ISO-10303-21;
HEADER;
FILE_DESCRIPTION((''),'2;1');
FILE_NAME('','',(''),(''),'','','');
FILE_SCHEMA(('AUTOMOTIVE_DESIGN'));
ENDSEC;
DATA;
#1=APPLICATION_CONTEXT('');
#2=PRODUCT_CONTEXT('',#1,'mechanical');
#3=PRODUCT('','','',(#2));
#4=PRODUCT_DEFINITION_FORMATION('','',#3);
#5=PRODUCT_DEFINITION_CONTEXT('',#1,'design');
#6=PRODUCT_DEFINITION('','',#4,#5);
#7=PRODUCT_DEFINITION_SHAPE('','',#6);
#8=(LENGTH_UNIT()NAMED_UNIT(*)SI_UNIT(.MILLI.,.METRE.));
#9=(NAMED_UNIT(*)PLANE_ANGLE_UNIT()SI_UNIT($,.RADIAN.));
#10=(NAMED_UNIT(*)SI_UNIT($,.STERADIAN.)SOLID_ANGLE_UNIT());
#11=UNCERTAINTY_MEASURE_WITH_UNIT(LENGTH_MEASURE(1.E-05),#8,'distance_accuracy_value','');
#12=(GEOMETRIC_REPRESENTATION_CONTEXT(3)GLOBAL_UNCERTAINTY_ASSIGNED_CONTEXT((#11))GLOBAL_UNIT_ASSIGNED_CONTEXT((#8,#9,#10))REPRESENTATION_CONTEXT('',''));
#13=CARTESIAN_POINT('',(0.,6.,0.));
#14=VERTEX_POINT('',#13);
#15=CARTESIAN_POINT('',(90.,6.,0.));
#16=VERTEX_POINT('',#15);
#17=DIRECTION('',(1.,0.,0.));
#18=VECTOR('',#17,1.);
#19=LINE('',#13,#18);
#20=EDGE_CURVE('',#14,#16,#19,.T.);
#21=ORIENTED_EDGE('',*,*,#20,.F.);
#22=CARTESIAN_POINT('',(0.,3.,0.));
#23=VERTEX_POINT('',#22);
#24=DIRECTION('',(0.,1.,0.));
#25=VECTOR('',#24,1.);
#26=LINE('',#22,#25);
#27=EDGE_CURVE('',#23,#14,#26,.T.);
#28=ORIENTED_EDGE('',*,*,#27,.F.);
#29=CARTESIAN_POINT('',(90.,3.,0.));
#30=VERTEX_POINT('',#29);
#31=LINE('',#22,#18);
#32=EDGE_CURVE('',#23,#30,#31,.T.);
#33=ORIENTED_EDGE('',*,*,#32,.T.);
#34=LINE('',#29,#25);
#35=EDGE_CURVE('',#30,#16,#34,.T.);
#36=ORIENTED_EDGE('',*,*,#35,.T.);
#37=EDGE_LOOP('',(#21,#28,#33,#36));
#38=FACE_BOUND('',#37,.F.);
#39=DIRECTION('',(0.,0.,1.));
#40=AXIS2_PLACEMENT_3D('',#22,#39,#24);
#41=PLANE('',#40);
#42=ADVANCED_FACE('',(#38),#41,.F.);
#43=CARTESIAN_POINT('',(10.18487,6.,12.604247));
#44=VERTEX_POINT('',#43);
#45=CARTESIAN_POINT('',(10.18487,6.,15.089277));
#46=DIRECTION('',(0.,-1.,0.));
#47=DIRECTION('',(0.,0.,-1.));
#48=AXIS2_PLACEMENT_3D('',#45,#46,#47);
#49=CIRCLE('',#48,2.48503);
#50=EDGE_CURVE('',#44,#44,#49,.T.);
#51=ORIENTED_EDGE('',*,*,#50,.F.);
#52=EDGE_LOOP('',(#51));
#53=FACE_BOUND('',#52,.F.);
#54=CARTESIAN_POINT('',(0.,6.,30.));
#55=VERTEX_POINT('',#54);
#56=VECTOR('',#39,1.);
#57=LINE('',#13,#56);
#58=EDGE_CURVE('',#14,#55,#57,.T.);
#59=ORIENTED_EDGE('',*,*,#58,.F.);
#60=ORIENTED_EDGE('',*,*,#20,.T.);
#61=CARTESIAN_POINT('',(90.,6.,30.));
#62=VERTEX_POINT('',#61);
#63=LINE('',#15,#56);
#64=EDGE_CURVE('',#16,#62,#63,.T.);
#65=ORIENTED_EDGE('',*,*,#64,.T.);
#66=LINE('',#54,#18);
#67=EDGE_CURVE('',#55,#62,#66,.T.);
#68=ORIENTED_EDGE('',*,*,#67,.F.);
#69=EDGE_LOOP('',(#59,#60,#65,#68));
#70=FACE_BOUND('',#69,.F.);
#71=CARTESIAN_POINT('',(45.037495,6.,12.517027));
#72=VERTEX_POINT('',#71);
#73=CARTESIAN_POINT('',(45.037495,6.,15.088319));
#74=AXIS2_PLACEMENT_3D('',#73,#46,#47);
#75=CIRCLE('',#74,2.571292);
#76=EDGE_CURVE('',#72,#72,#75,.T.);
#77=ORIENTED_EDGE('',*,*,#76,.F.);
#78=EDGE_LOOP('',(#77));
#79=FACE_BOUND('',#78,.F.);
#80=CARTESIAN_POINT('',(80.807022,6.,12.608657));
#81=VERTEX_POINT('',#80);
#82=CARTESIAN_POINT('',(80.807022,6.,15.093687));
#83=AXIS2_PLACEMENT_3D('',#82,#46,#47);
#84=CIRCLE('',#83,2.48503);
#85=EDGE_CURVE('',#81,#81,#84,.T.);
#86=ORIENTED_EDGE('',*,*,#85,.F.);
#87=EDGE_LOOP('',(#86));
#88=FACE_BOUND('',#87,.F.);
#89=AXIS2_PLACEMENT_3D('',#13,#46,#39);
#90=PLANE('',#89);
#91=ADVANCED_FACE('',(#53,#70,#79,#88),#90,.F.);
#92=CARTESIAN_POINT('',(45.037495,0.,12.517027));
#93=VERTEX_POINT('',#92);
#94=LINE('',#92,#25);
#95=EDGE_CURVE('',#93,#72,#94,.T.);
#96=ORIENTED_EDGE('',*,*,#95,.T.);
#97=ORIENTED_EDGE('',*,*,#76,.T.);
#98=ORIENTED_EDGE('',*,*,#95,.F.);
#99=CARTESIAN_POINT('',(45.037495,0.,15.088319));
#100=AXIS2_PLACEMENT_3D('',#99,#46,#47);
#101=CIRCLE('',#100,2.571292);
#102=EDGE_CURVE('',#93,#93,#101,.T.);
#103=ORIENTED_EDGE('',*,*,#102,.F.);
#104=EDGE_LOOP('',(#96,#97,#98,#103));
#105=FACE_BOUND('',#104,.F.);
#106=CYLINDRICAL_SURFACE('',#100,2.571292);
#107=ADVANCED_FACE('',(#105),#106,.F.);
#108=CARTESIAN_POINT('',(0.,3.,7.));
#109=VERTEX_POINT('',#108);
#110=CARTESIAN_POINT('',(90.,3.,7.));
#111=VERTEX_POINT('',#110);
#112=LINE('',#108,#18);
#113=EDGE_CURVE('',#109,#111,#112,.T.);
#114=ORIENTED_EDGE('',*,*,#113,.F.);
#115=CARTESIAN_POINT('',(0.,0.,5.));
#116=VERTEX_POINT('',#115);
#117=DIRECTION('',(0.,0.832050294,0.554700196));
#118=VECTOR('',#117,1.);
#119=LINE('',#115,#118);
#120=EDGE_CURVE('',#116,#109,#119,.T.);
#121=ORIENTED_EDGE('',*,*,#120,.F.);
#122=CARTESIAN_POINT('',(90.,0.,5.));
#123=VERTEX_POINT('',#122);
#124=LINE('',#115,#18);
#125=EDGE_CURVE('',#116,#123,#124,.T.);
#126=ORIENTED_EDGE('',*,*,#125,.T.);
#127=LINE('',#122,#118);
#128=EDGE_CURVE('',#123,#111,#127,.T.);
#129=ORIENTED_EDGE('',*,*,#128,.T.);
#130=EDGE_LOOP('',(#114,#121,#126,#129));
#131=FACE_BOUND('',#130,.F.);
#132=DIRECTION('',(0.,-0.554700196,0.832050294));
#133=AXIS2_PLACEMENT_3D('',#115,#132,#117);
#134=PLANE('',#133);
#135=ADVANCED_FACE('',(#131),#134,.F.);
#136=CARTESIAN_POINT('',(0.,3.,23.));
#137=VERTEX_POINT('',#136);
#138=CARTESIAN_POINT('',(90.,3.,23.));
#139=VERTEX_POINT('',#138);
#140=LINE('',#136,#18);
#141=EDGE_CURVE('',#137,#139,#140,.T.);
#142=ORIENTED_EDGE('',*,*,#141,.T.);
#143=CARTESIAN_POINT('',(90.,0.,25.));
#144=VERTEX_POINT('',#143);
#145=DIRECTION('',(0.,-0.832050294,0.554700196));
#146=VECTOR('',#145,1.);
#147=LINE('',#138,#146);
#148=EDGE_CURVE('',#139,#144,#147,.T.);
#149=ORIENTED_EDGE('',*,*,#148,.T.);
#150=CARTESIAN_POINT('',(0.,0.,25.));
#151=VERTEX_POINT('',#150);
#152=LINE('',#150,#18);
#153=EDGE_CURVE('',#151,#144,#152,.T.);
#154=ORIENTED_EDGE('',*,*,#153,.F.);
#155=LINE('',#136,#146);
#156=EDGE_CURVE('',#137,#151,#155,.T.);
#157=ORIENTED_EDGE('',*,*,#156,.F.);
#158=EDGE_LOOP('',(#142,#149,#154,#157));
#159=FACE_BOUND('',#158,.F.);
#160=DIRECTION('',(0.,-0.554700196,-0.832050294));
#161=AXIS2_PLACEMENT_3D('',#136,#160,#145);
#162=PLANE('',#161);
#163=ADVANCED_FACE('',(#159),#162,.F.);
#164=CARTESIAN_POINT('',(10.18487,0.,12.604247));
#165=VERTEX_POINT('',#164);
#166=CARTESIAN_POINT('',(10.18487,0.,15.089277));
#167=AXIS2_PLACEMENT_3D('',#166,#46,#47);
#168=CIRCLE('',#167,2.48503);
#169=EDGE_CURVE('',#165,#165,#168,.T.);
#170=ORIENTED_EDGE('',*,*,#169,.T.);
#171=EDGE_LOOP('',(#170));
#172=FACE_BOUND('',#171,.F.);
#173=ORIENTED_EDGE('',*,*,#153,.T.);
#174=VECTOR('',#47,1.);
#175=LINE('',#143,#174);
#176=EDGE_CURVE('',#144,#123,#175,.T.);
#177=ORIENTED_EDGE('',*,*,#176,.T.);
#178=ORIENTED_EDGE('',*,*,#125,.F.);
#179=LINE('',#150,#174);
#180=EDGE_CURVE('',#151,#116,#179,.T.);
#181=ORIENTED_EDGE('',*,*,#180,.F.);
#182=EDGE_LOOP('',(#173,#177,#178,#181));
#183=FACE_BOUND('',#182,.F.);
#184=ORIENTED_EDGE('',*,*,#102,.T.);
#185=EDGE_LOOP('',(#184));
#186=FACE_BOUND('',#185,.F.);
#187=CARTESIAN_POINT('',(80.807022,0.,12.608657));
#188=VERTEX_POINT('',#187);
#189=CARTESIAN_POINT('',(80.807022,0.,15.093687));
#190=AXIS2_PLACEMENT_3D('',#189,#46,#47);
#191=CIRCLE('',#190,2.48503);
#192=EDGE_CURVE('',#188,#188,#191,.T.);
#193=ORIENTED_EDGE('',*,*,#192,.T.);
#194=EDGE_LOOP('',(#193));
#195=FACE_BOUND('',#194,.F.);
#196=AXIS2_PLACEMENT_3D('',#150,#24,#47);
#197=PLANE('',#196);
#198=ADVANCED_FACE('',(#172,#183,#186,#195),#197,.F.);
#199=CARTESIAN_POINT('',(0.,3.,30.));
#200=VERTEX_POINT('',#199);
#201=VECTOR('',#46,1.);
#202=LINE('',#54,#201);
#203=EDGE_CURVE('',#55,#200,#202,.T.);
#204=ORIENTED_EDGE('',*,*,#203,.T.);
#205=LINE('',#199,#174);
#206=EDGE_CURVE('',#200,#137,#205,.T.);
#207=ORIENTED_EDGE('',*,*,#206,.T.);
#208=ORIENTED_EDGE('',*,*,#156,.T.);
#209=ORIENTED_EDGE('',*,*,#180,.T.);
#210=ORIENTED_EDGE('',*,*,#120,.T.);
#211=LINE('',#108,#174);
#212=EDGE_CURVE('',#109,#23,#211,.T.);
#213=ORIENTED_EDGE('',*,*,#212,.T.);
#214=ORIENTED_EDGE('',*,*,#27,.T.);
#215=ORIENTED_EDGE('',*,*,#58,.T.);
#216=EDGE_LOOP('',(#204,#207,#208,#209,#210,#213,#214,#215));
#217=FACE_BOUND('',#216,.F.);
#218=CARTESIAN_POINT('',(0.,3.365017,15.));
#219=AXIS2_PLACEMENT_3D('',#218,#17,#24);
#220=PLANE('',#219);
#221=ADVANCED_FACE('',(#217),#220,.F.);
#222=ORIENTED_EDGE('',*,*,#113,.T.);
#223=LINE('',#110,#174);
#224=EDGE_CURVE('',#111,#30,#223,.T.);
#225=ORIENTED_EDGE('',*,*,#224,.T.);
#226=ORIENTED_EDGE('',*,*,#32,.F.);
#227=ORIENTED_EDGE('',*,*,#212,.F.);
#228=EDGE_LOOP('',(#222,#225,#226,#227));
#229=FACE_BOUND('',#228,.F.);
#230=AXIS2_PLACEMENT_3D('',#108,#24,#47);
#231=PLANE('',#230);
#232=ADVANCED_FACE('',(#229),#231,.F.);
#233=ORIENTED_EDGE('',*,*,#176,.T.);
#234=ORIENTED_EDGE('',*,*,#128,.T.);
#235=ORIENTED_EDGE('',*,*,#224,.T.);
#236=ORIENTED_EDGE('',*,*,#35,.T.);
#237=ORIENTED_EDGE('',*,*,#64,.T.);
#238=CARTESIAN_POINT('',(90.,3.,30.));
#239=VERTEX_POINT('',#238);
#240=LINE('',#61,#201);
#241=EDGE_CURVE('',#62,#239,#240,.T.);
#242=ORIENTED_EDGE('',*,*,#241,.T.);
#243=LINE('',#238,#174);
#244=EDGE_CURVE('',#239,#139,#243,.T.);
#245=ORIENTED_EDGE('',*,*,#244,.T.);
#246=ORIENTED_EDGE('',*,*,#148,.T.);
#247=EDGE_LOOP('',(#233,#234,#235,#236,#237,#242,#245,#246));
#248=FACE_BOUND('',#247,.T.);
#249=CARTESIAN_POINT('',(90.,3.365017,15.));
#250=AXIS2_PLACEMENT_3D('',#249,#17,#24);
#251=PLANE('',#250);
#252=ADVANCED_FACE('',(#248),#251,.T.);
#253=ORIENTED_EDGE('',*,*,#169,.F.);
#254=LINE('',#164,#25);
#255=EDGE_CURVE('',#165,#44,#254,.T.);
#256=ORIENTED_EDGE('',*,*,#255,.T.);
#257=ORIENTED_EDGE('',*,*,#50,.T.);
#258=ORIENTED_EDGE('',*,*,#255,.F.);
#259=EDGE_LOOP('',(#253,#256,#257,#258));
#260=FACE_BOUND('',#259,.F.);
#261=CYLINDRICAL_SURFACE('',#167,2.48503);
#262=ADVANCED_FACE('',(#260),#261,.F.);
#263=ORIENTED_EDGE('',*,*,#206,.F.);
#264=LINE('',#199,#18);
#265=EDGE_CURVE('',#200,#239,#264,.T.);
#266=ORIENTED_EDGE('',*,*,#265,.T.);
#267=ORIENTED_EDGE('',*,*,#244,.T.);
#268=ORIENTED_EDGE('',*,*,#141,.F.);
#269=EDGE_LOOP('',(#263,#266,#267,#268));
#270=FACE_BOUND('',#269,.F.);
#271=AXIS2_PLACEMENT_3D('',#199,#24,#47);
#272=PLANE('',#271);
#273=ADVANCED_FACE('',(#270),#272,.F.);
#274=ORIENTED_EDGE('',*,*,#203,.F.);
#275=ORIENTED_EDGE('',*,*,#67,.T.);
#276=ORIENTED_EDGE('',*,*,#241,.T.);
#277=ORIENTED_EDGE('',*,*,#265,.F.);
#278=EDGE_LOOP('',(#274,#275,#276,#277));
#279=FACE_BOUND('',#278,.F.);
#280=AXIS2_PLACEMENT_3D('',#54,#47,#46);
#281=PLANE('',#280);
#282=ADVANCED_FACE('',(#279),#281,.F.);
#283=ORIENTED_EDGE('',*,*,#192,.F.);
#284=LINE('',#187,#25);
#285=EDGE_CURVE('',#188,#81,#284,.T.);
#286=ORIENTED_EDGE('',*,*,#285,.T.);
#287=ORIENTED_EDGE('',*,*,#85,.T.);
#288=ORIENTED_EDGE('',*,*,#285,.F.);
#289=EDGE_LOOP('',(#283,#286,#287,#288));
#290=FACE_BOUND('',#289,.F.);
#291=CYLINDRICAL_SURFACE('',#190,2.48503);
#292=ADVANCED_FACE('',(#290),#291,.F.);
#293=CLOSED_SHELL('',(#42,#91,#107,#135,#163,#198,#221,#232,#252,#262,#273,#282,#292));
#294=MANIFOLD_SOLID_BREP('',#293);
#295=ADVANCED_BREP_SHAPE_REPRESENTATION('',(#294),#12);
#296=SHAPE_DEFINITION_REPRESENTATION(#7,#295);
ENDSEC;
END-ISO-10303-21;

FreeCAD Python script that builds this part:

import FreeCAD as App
import Part
import Sketcher

V = App.Vector


def add_polygon(sketch, points):
    """Adds a closed chain of lines whose ends are joined by coincident constraints."""
    first, n = sketch.GeometryCount, len(points)
    for a, b in zip(points, points[1:] + points[:1]):
        sketch.addGeometry(Part.LineSegment(App.Vector(*a, 0), App.Vector(*b, 0)), False)
    for i in range(n):
        sketch.addConstraint(Sketcher.Constraint("Coincident", first + i, 2, first + (i + 1) % n, 1))

doc = App.newDocument("Part")
params = doc.addObject("Spreadsheet::Sheet", "Params")
for row, (alias, value) in enumerate([
    ("sketch1_width", "3 mm"),
    ("sketch1_height", "30 mm"),
    ("sketch1_height2", "7 mm"),
    ("sketch1_height3", "20 mm"),
    ("pad1_length", "90 mm"),
    ("pocket1_length", "6 mm"),
], start=1):
    params.set(f"A{row}", alias)
    params.set(f"B{row}", "=" + value)
    params.setAlias(f"B{row}", alias)

body = doc.addObject("PartDesign::Body", "Body")

sketch1 = body.newObject("Sketcher::SketchObject", "Sketch")
sketch1.AttachmentSupport = (doc.getObject("YZ_Plane"), [""])
sketch1.MapMode = "FlatFace"
add_polygon(sketch1, [(6, 0), (6, 30), (3, 30), (3, 23), (0, 25), (0, 5), (3, 7), (3, 0)])
sketch1.addConstraint([
    Sketcher.Constraint("Vertical", 0),
    Sketcher.Constraint("Horizontal", 1),
    Sketcher.Constraint("Vertical", 2),
    Sketcher.Constraint("Vertical", 4),
    Sketcher.Constraint("Vertical", 6),
    Sketcher.Constraint("Horizontal", 7),
    Sketcher.Constraint("PointOnObject", 3, 2, -2),
    Sketcher.Constraint("PointOnObject", 6, 2, -1),
    Sketcher.Constraint("Vertical", 2, 2, 5, 2),
    Sketcher.Constraint("Equal", 2, 6),
    Sketcher.Constraint("Equal", 3, 5),
    Sketcher.Constraint("DistanceX", 1, 2, 1, 1, 3.0),
    Sketcher.Constraint("DistanceY", 0, 1, 0, 2, 30.0),
    Sketcher.Constraint("DistanceY", 2, 2, 2, 1, 7.0),
    Sketcher.Constraint("DistanceY", 4, 2, 4, 1, 20.0),
    Sketcher.Constraint("DistanceX", -1, 1, 0, 2, 6.0),
])
sketch1.setExpression("Constraints[19]", "Params.sketch1_width")
sketch1.setExpression("Constraints[20]", "Params.sketch1_height")
sketch1.setExpression("Constraints[21]", "Params.sketch1_height2")
sketch1.setExpression("Constraints[22]", "Params.sketch1_height3")
pad1 = body.newObject("PartDesign::Pad", "Pad")
pad1.Profile = sketch1
pad1.setExpression("Length", "Params.pad1_length")

sketch2 = body.newObject("Sketcher::SketchObject", "Sketch001")
sketch2.AttachmentSupport = (doc.getObject("XZ_Plane"), [""])
sketch2.MapMode = "FlatFace"
sketch2.addGeometry([
    Part.Circle(V(45, 15.1, 0), V(0, 0, 1), 2.6),
    Part.Circle(V(80.8, 15.1, 0), V(0, 0, 1), 2.5),
    Part.Circle(V(10.2, 15.1, 0), V(0, 0, 1), 2.5),
], False)
sketch2.addConstraint([
    Sketcher.Constraint("Equal", 1, 2),
    Sketcher.Constraint("Diameter", 1, 4.97006),
    Sketcher.Constraint("Diameter", 0, 5.142584),
    Sketcher.Constraint("DistanceY", -1, 1, 0, 3, 15.088319),
    Sketcher.Constraint("DistanceX", -1, 1, 2, 3, 10.18487),
    Sketcher.Constraint("DistanceX", 2, 3, 1, 3, 70.622152),
    Sketcher.Constraint("DistanceY", 2, 3, 1, 3, 0.00441),
    Sketcher.Constraint("DistanceX", -1, 1, 0, 3, 45.037495),
    Sketcher.Constraint("DistanceY", -1, 1, 1, 3, 15.093687),
])
pocket1 = body.newObject("PartDesign::Pocket", "Pocket")
pocket1.Profile = sketch2
pocket1.setExpression("Length", "Params.pocket1_length")

doc.recompute()
